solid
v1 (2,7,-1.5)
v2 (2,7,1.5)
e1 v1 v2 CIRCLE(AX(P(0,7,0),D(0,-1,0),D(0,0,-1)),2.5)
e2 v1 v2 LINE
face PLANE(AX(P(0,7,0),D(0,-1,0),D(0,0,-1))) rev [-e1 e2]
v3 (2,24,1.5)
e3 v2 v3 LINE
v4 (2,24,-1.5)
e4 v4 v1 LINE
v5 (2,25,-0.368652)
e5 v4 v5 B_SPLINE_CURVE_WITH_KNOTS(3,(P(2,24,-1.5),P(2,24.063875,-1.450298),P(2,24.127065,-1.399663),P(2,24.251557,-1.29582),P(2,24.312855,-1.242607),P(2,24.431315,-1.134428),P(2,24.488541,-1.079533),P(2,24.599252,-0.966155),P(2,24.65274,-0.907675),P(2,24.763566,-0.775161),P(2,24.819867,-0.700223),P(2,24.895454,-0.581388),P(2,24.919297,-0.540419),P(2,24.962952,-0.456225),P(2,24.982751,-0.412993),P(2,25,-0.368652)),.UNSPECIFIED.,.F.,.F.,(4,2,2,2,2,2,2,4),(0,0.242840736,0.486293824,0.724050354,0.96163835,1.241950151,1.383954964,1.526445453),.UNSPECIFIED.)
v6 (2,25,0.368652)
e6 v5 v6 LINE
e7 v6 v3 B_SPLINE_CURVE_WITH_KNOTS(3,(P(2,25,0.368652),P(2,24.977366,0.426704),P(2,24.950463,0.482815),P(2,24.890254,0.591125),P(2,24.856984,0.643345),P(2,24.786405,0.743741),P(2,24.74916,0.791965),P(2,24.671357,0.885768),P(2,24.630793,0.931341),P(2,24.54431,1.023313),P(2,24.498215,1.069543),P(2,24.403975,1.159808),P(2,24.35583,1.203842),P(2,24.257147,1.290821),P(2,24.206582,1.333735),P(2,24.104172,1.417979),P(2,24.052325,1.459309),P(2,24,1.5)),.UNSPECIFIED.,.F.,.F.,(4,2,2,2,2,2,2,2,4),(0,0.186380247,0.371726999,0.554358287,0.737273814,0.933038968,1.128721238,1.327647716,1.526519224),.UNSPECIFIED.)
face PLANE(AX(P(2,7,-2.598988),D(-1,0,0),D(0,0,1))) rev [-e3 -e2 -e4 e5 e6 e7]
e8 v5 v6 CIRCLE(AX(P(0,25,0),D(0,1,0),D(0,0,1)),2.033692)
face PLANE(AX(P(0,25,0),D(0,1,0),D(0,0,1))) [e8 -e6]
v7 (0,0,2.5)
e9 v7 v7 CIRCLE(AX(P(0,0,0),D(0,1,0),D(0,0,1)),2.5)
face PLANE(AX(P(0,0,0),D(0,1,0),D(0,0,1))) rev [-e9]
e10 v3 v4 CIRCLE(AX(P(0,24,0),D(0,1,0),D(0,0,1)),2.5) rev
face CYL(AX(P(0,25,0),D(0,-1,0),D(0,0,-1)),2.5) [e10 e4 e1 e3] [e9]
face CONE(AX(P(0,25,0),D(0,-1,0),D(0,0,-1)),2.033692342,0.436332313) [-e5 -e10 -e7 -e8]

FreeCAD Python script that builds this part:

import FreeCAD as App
import Part
import Sketcher

V = App.Vector
Q = App.Units.Quantity


def edges_at(feature, points):
    """Names of the edges that pass closest to the given points."""
    edges = feature.Shape.Edges
    near = lambda p: min(range(len(edges)), key=lambda i: edges[i].distToShape(Part.Vertex(*p))[0])
    return sorted({f"Edge{near(p) + 1}" for p in points})


def add_polygon(sketch, points):
    """Adds a closed chain of lines whose ends are joined by coincident constraints."""
    first, n = sketch.GeometryCount, len(points)
    for a, b in zip(points, points[1:] + points[:1]):
        sketch.addGeometry(Part.LineSegment(App.Vector(*a, 0), App.Vector(*b, 0)), False)
    for i in range(n):
        sketch.addConstraint(Sketcher.Constraint("Coincident", first + i, 2, first + (i + 1) % n, 1))

doc = App.newDocument("Part")
body = doc.addObject("PartDesign::Body", "Body")

sketch1 = body.newObject("Sketcher::SketchObject", "Sketch")
sketch1.AttachmentSupport = (doc.getObject("XZ_Plane"), [""])
sketch1.MapMode = "FlatFace"
sketch1.addGeometry(Part.Circle(V(0, 0, 0), V(0, 0, 1), 2.5), False)
sketch1.addConstraint([
    Sketcher.Constraint("Coincident", 0, 3, -1, 1),
    Sketcher.Constraint("Diameter", 0, Q("5 mm")),
])
pad1 = body.newObject("PartDesign::Pad", "Pad")
pad1.Profile = sketch1
pad1.Length = 25
pad1.Reversed = True

sketch2 = body.newObject("Sketcher::SketchObject", "Sketch001")
sketch2.AttachmentSupport = (doc.getObject("XZ_Plane"), [""])
sketch2.MapMode = "FlatFace"
sketch2.AttachmentOffset = App.Placement(V(0, 0, -25), App.Rotation())
add_polygon(sketch2, [(2, -2.598988), (2, 2.361625), (2.93708, 2.012796), (3.777563, 1.758131), (3.874161, 0.748251)])
sketch2.addConstraint([
    Sketcher.Constraint("Vertical", 0),
    Sketcher.Constraint("DistanceX", -1, 1, 0, 2, Q("2 mm")),
    Sketcher.Constraint("Distance", 1, Q("0.9999 mm")),
    Sketcher.Constraint("Distance", 3, Q("1.014489 mm")),
    Sketcher.Constraint("DistanceY", 0, 1, 0, 2, Q("4.960613 mm")),
    Sketcher.Constraint("DistanceX", -1, 1, 1, 2, Q("2.93708 mm")),
    Sketcher.Constraint("DistanceY", -1, 1, 2, 2, Q("1.758131 mm")),
    Sketcher.Constraint("DistanceX", -1, 1, 3, 2, Q("3.874161 mm")),
    Sketcher.Constraint("DistanceY", -1, 1, 3, 2, Q("0.748251 mm")),
    Sketcher.Constraint("DistanceY", 4, 2, 3, 2, Q("3.347239 mm")),
])
pocket1 = body.newObject("PartDesign::Pocket", "Pocket")
pocket1.Profile = sketch2
pocket1.Length = 18
pocket1.Reversed = True
doc.recompute()

chamfer = body.newObject("PartDesign::Chamfer", "Chamfer")
chamfer.Base = (pocket1, edges_at(pocket1, [(-2.5, 25, 0)]))
chamfer.ChamferType = "Two distances"
chamfer.Size = 1
chamfer.Size2 = 0.466308

doc.recompute()
